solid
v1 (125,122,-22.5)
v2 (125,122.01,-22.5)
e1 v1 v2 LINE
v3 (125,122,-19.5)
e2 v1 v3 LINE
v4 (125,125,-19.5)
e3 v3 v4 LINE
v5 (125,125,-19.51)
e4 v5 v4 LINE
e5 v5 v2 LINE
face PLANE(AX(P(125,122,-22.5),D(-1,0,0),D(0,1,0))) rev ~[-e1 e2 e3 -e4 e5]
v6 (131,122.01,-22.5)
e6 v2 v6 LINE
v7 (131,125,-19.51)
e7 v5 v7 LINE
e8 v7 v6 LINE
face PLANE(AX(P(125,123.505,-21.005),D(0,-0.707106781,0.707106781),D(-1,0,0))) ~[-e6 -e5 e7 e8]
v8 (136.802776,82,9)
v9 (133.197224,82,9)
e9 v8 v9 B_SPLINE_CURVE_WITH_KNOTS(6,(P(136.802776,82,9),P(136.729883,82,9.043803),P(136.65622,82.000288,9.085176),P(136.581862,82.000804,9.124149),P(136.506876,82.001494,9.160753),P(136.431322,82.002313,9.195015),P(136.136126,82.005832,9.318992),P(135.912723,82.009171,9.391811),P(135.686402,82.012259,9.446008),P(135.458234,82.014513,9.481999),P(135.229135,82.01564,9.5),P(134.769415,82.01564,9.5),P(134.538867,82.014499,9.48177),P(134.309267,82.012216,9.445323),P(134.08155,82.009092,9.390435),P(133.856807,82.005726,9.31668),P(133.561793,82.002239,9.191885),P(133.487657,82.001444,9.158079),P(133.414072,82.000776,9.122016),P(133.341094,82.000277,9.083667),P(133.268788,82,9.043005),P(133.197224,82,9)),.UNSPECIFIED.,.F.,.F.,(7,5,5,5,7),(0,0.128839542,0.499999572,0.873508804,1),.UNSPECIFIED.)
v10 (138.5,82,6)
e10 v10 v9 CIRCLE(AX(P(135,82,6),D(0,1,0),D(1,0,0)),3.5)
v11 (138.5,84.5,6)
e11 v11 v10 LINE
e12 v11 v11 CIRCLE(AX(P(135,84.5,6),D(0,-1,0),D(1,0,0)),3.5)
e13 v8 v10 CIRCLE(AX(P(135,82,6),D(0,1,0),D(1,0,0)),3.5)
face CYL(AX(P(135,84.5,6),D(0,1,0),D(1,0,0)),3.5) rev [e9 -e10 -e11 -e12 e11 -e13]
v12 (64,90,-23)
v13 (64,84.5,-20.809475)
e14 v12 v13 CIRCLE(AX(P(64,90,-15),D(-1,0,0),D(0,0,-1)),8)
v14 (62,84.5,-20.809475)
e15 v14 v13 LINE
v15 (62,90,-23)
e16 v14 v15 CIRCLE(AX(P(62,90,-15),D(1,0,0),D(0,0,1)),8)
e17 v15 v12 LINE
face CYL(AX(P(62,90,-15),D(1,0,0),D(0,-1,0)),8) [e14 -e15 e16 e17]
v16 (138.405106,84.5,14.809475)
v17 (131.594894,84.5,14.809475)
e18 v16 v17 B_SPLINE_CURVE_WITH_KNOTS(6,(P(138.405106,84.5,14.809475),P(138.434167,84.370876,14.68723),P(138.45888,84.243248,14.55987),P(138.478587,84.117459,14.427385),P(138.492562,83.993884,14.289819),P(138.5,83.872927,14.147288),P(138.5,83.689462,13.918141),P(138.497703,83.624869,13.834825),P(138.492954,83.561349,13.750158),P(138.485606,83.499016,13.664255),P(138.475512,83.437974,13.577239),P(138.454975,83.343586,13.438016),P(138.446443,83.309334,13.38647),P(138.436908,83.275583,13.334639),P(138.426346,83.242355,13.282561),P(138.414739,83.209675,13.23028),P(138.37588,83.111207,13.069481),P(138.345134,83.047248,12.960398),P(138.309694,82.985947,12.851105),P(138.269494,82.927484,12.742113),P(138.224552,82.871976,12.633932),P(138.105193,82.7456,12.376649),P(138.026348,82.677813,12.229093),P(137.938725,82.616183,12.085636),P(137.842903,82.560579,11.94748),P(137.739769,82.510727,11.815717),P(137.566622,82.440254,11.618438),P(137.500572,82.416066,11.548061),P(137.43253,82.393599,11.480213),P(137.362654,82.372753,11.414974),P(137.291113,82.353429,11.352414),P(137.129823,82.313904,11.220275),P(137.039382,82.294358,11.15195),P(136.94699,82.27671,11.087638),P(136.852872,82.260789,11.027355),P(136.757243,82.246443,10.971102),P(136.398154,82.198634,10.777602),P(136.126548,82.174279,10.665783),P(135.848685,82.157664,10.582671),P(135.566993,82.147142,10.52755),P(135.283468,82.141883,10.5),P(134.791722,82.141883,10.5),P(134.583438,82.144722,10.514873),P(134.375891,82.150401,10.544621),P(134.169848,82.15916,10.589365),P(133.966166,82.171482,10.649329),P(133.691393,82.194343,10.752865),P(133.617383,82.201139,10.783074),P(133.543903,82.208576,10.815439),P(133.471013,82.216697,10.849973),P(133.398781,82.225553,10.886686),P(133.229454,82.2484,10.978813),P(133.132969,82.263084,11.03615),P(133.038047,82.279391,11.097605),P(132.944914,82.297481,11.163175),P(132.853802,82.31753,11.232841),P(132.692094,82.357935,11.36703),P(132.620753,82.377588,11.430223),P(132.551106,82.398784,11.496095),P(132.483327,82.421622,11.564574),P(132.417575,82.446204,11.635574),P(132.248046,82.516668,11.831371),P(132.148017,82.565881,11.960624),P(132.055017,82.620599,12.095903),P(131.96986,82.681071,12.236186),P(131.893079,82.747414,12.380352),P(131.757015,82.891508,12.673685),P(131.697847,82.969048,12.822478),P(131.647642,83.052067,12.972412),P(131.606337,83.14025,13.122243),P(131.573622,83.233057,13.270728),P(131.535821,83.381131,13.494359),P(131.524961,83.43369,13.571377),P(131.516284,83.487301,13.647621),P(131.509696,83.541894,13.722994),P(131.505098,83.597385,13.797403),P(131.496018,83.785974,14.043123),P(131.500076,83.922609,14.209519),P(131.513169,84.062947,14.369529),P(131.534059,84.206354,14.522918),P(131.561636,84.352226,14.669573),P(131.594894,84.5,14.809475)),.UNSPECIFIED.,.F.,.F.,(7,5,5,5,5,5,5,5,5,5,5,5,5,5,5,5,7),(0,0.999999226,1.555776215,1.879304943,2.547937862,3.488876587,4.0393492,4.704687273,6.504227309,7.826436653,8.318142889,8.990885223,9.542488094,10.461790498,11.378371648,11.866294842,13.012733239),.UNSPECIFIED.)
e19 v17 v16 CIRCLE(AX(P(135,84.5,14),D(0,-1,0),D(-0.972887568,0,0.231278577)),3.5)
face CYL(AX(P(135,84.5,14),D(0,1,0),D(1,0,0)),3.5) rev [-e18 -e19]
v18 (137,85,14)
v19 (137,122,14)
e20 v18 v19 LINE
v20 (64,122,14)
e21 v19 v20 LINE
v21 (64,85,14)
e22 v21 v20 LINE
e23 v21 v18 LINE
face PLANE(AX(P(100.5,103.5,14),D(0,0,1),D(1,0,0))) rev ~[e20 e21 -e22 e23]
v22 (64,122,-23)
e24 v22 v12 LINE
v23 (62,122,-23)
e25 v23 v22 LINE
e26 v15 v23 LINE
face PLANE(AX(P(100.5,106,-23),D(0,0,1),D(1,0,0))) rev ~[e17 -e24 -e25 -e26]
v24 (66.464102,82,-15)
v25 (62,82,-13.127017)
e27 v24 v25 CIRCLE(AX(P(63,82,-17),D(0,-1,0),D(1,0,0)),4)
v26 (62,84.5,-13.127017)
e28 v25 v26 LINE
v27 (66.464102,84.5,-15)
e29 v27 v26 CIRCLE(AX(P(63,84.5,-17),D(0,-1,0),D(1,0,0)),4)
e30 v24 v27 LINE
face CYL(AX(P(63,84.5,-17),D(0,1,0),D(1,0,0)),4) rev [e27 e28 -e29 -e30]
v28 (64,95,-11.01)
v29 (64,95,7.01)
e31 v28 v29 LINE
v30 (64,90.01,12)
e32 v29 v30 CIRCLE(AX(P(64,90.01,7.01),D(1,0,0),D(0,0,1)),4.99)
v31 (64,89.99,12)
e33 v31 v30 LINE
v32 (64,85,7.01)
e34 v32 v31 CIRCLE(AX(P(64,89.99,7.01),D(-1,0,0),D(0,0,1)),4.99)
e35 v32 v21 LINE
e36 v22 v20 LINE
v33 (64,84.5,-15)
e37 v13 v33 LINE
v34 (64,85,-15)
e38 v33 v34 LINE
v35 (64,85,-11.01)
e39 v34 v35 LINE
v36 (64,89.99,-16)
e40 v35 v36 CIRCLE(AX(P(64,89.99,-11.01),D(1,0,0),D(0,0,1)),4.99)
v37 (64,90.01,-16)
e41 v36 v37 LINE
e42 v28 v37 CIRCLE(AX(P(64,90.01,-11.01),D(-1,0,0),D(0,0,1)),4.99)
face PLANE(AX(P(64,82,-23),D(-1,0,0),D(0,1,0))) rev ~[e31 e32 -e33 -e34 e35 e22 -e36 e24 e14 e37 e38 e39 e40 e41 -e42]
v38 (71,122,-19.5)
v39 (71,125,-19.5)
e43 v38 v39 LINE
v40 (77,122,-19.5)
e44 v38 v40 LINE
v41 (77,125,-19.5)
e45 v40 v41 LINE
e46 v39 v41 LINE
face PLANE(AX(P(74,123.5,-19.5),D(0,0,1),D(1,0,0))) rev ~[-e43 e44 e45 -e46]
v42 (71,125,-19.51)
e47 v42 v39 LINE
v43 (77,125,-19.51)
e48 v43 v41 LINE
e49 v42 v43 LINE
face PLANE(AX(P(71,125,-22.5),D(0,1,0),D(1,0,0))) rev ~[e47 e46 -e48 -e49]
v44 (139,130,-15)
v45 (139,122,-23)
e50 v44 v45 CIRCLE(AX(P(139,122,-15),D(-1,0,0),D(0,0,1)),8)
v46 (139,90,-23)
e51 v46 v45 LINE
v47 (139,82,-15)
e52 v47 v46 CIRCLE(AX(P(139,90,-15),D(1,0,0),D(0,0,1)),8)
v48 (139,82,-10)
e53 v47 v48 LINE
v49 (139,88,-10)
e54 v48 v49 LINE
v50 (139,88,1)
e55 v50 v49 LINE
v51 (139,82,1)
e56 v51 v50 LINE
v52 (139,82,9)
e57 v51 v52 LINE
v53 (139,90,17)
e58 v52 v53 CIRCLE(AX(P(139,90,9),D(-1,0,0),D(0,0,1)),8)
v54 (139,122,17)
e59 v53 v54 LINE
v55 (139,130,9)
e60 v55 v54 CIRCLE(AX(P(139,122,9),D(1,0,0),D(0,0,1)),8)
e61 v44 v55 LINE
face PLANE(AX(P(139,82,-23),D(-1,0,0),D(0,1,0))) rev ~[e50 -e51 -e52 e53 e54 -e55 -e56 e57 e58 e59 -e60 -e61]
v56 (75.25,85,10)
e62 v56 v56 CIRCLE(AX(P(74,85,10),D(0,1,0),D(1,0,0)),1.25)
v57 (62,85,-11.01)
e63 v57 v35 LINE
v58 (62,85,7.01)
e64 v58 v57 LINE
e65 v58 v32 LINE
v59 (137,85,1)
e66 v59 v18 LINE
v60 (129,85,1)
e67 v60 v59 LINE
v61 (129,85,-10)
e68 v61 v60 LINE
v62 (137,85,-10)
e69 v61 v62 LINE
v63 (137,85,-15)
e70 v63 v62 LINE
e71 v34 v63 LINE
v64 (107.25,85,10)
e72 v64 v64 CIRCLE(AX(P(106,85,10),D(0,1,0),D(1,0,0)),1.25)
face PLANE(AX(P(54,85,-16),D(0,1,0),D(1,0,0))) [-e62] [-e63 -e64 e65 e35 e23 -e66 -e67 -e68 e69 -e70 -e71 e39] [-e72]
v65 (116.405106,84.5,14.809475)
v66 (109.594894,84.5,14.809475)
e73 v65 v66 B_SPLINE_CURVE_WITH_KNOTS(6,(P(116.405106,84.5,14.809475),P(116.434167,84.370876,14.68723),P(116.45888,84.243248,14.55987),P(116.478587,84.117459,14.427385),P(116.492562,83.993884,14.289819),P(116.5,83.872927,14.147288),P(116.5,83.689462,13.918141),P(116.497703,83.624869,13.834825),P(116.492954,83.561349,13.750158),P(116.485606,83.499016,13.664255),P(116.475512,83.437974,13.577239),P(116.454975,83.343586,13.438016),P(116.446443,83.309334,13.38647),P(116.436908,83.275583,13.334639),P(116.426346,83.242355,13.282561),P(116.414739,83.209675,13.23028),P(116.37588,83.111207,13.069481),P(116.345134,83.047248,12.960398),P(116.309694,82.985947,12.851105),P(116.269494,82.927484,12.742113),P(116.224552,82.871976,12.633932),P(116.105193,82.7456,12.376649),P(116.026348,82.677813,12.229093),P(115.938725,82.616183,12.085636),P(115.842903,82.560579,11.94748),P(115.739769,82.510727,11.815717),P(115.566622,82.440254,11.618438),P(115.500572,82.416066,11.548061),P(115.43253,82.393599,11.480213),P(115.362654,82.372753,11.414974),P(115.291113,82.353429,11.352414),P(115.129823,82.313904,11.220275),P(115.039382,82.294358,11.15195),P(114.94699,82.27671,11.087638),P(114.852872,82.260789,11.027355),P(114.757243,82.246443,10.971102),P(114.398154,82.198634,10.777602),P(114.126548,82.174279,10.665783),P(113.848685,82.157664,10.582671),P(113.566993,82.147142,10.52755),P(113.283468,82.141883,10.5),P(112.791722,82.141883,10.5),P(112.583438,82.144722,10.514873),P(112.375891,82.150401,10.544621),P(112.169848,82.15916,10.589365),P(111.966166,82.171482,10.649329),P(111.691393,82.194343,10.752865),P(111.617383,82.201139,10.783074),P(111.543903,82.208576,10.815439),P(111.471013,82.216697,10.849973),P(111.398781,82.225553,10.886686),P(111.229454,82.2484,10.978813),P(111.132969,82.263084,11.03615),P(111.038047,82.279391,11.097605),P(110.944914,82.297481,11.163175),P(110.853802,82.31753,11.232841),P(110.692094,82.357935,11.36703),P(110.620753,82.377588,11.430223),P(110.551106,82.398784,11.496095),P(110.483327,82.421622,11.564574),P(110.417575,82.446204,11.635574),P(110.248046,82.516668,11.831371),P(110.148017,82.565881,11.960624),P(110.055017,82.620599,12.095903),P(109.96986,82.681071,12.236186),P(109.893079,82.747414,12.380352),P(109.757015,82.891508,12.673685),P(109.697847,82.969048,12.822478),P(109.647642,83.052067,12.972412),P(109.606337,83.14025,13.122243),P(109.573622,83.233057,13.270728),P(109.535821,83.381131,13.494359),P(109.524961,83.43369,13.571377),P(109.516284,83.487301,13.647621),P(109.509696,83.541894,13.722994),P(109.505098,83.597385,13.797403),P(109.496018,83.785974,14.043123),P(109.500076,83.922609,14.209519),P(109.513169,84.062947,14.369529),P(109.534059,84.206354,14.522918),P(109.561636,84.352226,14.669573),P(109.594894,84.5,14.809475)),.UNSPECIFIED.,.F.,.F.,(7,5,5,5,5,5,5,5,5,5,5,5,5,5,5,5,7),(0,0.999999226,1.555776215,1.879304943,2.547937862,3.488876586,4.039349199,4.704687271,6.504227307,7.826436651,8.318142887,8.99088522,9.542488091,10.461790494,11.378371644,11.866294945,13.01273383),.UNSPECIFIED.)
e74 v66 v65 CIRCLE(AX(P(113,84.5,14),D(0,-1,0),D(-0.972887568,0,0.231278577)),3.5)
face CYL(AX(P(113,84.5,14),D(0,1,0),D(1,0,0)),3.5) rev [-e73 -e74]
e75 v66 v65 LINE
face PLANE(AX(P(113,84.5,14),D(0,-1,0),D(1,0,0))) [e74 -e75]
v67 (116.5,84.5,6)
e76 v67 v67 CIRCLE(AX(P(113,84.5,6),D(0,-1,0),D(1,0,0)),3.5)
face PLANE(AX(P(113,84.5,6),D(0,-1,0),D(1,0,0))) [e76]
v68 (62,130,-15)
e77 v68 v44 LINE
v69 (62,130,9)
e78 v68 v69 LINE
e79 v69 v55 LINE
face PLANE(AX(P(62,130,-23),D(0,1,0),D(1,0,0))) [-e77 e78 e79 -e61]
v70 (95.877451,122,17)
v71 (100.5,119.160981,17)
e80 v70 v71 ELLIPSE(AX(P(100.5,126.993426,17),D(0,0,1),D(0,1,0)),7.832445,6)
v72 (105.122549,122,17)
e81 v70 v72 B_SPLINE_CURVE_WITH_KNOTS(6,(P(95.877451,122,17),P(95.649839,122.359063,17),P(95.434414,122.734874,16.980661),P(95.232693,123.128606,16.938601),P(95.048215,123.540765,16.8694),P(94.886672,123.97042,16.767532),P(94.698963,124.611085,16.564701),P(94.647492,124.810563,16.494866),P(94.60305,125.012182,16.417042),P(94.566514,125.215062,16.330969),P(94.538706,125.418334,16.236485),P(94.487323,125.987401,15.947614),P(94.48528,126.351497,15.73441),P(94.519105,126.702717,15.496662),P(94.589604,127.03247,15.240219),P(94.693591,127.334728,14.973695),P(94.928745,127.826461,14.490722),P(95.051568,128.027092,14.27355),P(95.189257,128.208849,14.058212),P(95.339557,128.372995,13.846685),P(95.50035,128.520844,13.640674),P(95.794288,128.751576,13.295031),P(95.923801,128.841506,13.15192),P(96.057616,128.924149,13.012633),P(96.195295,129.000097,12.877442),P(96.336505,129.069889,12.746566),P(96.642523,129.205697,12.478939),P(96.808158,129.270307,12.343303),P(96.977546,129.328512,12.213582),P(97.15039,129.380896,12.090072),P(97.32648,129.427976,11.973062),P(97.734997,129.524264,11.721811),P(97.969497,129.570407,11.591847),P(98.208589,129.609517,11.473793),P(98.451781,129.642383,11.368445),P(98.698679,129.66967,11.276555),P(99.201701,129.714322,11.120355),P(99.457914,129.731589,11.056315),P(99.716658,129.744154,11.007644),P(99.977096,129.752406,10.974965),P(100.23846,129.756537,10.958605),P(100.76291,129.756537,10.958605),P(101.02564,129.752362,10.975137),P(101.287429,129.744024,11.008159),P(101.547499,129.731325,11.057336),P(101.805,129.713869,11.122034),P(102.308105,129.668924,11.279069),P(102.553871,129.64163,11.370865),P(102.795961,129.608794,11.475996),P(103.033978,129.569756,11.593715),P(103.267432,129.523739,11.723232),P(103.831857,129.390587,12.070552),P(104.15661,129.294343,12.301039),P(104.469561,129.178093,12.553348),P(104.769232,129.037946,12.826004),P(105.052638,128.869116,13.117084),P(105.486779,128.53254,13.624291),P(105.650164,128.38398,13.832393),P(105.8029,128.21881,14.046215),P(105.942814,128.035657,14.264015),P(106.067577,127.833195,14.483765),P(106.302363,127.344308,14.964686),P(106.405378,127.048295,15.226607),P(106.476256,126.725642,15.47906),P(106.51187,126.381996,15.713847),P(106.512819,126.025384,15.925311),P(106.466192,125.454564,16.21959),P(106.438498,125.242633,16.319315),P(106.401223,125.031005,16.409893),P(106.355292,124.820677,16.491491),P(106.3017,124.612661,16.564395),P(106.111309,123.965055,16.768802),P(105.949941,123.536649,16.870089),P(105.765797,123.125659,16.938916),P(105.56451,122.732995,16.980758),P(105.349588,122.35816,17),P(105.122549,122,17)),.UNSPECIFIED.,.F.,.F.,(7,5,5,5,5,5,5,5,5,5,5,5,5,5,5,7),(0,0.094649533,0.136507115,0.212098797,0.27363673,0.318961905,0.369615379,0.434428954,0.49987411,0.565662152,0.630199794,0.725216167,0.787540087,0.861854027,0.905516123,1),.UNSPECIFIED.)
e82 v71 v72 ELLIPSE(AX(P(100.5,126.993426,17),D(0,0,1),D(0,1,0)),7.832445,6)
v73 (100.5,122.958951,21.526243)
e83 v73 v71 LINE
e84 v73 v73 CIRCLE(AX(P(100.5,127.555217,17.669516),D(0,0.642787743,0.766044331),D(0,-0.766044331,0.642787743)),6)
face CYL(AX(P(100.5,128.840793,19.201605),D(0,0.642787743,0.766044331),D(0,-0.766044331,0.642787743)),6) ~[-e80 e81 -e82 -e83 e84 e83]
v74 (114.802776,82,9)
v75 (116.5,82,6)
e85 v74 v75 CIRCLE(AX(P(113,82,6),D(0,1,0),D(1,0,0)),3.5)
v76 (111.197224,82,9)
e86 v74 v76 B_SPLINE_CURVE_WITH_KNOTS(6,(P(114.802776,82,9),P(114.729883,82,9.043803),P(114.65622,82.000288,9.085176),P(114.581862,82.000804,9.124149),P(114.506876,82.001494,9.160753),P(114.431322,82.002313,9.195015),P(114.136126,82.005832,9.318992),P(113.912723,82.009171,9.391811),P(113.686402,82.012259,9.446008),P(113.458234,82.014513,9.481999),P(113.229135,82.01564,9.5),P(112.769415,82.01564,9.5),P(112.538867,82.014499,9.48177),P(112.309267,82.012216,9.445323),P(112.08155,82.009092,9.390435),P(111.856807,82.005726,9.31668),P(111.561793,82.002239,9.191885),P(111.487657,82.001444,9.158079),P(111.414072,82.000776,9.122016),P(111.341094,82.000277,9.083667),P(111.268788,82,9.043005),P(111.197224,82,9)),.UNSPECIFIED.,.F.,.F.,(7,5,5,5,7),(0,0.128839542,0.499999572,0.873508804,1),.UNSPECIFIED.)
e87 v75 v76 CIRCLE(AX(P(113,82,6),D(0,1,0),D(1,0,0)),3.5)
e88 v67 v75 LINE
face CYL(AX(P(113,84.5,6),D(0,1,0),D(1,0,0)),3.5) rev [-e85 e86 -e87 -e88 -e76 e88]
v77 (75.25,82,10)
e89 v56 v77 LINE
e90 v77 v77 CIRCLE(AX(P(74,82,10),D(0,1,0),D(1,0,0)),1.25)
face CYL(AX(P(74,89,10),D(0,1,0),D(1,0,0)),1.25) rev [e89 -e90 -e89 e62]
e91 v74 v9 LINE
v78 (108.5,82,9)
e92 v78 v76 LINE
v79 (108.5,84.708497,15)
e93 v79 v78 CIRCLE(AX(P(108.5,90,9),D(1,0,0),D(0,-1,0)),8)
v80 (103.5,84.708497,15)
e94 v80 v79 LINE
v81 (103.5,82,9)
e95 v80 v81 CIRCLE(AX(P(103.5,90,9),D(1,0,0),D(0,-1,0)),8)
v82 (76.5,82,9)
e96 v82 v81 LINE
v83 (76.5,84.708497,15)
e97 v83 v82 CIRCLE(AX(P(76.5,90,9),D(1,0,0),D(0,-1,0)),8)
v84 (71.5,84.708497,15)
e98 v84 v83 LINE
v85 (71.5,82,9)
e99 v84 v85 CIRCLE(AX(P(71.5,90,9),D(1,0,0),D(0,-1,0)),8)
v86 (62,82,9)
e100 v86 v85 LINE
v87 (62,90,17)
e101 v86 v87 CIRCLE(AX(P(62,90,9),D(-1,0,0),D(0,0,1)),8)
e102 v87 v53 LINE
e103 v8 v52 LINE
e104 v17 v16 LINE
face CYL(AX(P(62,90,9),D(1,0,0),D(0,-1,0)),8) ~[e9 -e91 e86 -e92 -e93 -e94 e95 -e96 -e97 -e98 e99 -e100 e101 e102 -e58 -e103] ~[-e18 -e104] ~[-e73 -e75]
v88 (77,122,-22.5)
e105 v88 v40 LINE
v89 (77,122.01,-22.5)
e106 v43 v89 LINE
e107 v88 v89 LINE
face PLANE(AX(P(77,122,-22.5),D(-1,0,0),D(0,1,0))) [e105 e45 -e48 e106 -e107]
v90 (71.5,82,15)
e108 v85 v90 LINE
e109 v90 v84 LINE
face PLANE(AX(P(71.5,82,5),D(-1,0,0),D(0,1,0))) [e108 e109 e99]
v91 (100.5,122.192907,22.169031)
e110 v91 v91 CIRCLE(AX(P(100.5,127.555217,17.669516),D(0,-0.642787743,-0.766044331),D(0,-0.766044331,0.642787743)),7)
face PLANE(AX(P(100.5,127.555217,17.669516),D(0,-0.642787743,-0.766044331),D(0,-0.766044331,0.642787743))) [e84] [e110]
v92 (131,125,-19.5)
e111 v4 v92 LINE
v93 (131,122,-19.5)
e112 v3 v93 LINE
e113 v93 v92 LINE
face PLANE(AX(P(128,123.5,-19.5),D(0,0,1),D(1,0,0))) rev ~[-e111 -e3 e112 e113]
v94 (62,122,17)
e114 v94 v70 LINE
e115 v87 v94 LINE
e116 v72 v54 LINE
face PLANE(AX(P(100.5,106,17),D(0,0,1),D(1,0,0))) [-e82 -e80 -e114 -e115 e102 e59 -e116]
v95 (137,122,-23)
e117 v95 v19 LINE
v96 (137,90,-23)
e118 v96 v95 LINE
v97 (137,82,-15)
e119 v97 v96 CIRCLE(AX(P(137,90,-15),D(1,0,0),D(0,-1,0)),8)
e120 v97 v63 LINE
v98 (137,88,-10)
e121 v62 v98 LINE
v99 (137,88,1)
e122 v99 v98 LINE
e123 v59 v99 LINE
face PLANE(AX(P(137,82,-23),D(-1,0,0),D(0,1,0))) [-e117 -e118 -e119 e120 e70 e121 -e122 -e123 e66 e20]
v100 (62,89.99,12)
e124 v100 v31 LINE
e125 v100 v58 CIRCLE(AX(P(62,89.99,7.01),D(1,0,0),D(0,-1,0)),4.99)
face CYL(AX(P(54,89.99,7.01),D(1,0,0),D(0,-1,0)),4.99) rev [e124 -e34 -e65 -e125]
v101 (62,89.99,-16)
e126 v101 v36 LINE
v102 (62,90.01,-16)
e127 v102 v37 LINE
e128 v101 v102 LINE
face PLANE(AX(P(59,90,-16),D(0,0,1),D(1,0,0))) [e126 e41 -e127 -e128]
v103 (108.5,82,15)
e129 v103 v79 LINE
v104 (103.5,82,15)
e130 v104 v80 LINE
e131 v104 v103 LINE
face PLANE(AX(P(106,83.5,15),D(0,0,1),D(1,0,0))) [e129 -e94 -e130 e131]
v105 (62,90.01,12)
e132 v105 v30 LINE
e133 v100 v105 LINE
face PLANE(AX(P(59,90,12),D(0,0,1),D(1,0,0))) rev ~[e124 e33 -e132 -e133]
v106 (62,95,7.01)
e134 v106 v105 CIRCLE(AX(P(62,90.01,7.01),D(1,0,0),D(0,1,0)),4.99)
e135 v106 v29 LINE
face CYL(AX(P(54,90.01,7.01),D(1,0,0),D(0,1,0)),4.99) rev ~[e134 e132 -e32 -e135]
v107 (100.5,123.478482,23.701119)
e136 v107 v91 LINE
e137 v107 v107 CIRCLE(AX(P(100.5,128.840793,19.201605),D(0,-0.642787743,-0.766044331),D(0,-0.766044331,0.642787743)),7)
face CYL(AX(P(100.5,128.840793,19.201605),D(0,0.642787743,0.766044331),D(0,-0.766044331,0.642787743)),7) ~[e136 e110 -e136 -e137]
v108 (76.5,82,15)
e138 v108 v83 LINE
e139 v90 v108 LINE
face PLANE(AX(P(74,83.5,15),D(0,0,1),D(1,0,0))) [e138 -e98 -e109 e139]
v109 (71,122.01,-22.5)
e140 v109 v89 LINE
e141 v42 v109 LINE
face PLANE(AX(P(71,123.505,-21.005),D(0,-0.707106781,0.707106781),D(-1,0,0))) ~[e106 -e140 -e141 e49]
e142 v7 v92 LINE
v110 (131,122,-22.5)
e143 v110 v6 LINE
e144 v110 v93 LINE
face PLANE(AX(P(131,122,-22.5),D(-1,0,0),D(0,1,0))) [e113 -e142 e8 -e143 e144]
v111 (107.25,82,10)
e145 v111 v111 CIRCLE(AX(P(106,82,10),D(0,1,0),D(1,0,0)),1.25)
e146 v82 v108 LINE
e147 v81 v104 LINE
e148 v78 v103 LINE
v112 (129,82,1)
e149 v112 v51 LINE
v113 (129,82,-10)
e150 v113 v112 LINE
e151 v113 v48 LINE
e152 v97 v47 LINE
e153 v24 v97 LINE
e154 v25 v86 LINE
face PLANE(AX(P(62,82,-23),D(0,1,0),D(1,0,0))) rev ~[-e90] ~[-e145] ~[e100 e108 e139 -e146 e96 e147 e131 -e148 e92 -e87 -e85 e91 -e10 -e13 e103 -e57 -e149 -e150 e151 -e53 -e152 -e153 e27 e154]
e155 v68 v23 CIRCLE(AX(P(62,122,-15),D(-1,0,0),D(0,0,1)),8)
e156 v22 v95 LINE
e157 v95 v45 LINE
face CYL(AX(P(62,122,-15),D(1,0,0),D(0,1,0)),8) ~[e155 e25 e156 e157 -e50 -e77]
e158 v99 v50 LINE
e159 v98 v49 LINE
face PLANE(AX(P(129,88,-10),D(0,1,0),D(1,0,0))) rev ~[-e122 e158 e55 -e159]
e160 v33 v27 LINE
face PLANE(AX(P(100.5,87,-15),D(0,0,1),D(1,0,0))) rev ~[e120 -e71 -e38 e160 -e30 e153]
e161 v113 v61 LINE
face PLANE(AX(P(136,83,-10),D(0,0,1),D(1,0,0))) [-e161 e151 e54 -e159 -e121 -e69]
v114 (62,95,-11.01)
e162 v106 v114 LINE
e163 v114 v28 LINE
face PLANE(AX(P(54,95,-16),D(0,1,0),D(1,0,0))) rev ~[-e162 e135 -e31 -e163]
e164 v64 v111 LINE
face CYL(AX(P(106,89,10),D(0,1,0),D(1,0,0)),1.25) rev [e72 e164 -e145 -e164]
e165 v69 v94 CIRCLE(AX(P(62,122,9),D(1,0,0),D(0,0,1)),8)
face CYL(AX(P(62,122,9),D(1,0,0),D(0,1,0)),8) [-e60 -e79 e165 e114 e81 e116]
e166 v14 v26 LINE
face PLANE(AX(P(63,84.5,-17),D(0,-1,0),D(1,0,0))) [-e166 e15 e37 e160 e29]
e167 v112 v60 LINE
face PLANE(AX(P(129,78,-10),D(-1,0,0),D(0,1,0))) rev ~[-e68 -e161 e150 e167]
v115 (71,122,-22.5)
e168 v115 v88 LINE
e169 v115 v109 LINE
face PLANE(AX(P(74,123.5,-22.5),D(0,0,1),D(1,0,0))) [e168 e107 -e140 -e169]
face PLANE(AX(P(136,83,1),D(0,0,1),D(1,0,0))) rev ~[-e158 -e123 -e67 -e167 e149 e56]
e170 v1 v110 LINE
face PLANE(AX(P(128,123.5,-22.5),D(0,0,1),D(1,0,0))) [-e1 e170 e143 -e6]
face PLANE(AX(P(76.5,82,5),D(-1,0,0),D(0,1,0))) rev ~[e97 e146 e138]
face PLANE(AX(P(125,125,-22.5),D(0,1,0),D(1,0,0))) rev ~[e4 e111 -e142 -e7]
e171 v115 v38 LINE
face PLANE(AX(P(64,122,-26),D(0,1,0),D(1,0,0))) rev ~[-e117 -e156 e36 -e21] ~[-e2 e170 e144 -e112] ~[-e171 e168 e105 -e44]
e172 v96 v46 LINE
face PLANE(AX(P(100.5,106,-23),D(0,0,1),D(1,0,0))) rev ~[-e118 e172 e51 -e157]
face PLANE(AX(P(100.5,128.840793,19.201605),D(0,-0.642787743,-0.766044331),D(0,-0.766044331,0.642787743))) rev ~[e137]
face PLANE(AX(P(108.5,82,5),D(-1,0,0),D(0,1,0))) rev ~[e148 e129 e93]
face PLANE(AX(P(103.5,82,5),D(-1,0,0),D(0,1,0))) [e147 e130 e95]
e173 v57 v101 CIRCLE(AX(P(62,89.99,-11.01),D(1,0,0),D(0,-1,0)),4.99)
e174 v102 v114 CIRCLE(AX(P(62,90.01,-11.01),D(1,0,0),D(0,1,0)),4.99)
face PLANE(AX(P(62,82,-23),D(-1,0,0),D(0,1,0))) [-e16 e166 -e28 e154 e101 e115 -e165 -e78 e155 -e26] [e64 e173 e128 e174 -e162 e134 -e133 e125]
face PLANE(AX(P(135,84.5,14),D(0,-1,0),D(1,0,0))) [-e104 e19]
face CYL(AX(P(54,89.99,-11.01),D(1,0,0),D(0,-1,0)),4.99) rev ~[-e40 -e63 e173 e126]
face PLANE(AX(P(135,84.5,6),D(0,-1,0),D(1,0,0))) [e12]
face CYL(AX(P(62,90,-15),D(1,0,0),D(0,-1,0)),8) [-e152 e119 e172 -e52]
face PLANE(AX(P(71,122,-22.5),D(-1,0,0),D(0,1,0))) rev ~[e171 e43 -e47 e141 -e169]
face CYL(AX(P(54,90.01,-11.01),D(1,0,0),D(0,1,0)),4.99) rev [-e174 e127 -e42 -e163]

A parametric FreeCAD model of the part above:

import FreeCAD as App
import Part
import Sketcher

V = App.Vector


def edges_at(feature, points):
    """Names of the edges that pass closest to the given points."""
    edges = feature.Shape.Edges
    near = lambda p: min(range(len(edges)), key=lambda i: edges[i].distToShape(Part.Vertex(*p))[0])
    return sorted({f"Edge{near(p) + 1}" for p in points})


def add_polygon(sketch, points):
    """Adds a closed chain of lines whose ends are joined by coincident constraints."""
    first, n = sketch.GeometryCount, len(points)
    for a, b in zip(points, points[1:] + points[:1]):
        sketch.addGeometry(Part.LineSegment(App.Vector(*a, 0), App.Vector(*b, 0)), False)
    for i in range(n):
        sketch.addConstraint(Sketcher.Constraint("Coincident", first + i, 2, first + (i + 1) % n, 1))

doc = App.newDocument("Part")
body = doc.addObject("PartDesign::Body", "Body")

# Sketch on XY plane
sketch1 = body.newObject("Sketcher::SketchObject", "Sketch")
sketch1.AttachmentSupport = (doc.getObject("XY_Plane"), [""])
sketch1.MapMode = "FlatFace"
sketch1.addGeometry(Part.Circle(V(0, 0, 0), V(0, 0, 1), 4), False)
sketch1.addConstraint(Sketcher.Constraint("Coincident", 0, 3, -1, 1))
sketch1.addConstraint(Sketcher.Constraint("Diameter", 0, 8.0))
pad1 = body.newObject("PartDesign::Pad", "Pad")
pad1.Profile = sketch1
pad1.Length = 2.5
body2 = doc.addObject("PartDesign::Body", "Body001")
doc.recompute()

body.Placement = App.Placement(V(0, 0, 0), App.Rotation(V(1, 0, 0), 90))
boolean = body2.newObject("PartDesign::Boolean", "Boolean")
boolean.Type = "Fuse"
boolean.addObjects([body])
body3 = doc.addObject("PartDesign::Body", "Body002")
doc.recompute()

body2.Placement = App.Placement(V(63, 84.5, -17), App.Rotation(V(0, 0, 1), 0))
boolean2 = body3.newObject("PartDesign::Boolean", "Boolean001")
boolean2.Type = "Fuse"
boolean2.addObjects([body2])
body4 = doc.addObject("PartDesign::Body", "Body003")

# Sketch on XY plane
sketch2 = body4.newObject("Sketcher::SketchObject", "Sketch001")
sketch2.AttachmentSupport = (doc.getObject("XY_Plane003"), [""])
sketch2.MapMode = "FlatFace"
sketch2.AttachmentOffset = App.Placement(V(0, 0, -10), App.Rotation())
add_polygon(sketch2, [(129, 88), (129, 78), (143, 78), (143, 88)])  # lines 0-3
sketch2.addConstraint(Sketcher.Constraint("Vertical", 0))
sketch2.addConstraint(Sketcher.Constraint("Horizontal", 1))
sketch2.addConstraint(Sketcher.Constraint("Vertical", 2))
sketch2.addConstraint(Sketcher.Constraint("Horizontal", 3))
sketch2.addConstraint(Sketcher.Constraint("DistanceX", 1, 1, 1, 2, 14.0))
sketch2.addConstraint(Sketcher.Constraint("DistanceY", 0, 2, 0, 1, 10.0))
sketch2.addConstraint(Sketcher.Constraint("DistanceX", -1, 1, 0, 2, 129.0))
sketch2.addConstraint(Sketcher.Constraint("DistanceY", -1, 1, 0, 2, 78.0))
pad2 = body4.newObject("PartDesign::Pad", "Pad001")
pad2.Profile = sketch2
pad2.Length = 11
body5 = doc.addObject("PartDesign::Body", "Body004")

# Sketch on XY plane
sketch3 = body5.newObject("Sketcher::SketchObject", "Sketch002")
sketch3.AttachmentSupport = (doc.getObject("XY_Plane004"), [""])
sketch3.MapMode = "FlatFace"
sketch3.addGeometry(Part.Circle(V(0, 0, 0), V(0, 0, 1), 1.2), False)
sketch3.addConstraint(Sketcher.Constraint("Coincident", 0, 3, -1, 1))
sketch3.addConstraint(Sketcher.Constraint("Diameter", 0, 2.5))
pad3 = body5.newObject("PartDesign::Pad", "Pad002")
pad3.Profile = sketch3
pad3.Length = 15
body6 = doc.addObject("PartDesign::Body", "Body005")
doc.recompute()

body5.Placement = App.Placement(V(0, 0, 0), App.Rotation(V(1, 0, 0), 90))
boolean3 = body6.newObject("PartDesign::Boolean", "Boolean002")
boolean3.Type = "Fuse"
boolean3.addObjects([body5])
body7 = doc.addObject("PartDesign::Body", "Body006")
doc.recompute()

body6.Placement = App.Placement(V(74, 97, 10), App.Rotation(V(0, 0, 1), 0))
boolean4 = body7.newObject("PartDesign::Boolean", "Boolean003")
boolean4.Type = "Fuse"
boolean4.addObjects([body6])
body8 = doc.addObject("PartDesign::Body", "Body007")

# Sketch on XY plane
sketch4 = body8.newObject("Sketcher::SketchObject", "Sketch003")
sketch4.AttachmentSupport = (doc.getObject("XY_Plane007"), [""])
sketch4.MapMode = "FlatFace"
sketch4.addGeometry(Part.Circle(V(0, 0, 0), V(0, 0, 1), 1.2), False)
sketch4.addConstraint(Sketcher.Constraint("Coincident", 0, 3, -1, 1))
sketch4.addConstraint(Sketcher.Constraint("Diameter", 0, 2.5))
pad4 = body8.newObject("PartDesign::Pad", "Pad003")
pad4.Profile = sketch4
pad4.Length = 15
body9 = doc.addObject("PartDesign::Body", "Body008")
doc.recompute()

body8.Placement = App.Placement(V(0, 0, 0), App.Rotation(V(1, 0, 0), 90))
boolean5 = body9.newObject("PartDesign::Boolean", "Boolean004")
boolean5.Type = "Fuse"
boolean5.addObjects([body8])
body10 = doc.addObject("PartDesign::Body", "Body009")
body10.AllowCompound = True
doc.recompute()

body9.Placement = App.Placement(V(106, 97, 10), App.Rotation(V(0, 0, 1), 0))
boolean6 = body10.newObject("PartDesign::Boolean", "Boolean005")
boolean6.Type = "Fuse"
boolean6.addObjects([body9])
doc.recompute()

boolean7 = body10.newObject("PartDesign::Boolean", "Boolean006")
boolean7.Type = "Fuse"
boolean7.addObjects([body7])
body11 = doc.addObject("PartDesign::Body", "Body010")
body11.AllowCompound = True
doc.recompute()

body10.Placement = App.Placement(V(0, -8, 0), App.Rotation(V(0, 0, 1), 0))
boolean8 = body11.newObject("PartDesign::Boolean", "Boolean007")
boolean8.Type = "Fuse"
boolean8.addObjects([body10])
body12 = doc.addObject("PartDesign::Body", "Body011")

# Sketch on XY plane
sketch5 = body12.newObject("Sketcher::SketchObject", "Sketch004")
sketch5.AttachmentSupport = (doc.getObject("XY_Plane011"), [""])
sketch5.MapMode = "FlatFace"
sketch5.addGeometry(Part.Circle(V(-8, 25.5, 0), V(0, 0, 1), 3.5), False)
sketch5.addConstraint(Sketcher.Constraint("Diameter", 0, 7.0))
sketch5.addConstraint(Sketcher.Constraint("DistanceX", 0, 3, -1, 1, 8.0))
sketch5.addConstraint(Sketcher.Constraint("DistanceY", -1, 1, 0, 3, 25.5))
pad5 = body12.newObject("PartDesign::Pad", "Pad004")
pad5.Profile = sketch5
pad5.Length = 10
body13 = doc.addObject("PartDesign::Body", "Body012")
body13.AllowCompound = True

# Sketch on XY plane
sketch6 = body13.newObject("Sketcher::SketchObject", "Sketch005")
sketch6.AttachmentSupport = (doc.getObject("XY_Plane012"), [""])
sketch6.MapMode = "FlatFace"
sketch6.addGeometry(Part.Circle(V(-8, 33.5, 0), V(0, 0, 1), 3.5), False)
sketch6.addConstraint(Sketcher.Constraint("Diameter", 0, 7.0))
sketch6.addConstraint(Sketcher.Constraint("DistanceX", 0, 3, -1, 1, 8.0))
sketch6.addConstraint(Sketcher.Constraint("DistanceY", -1, 1, 0, 3, 33.5))
pad6 = body13.newObject("PartDesign::Pad", "Pad005")
pad6.Profile = sketch6
pad6.Length = 10
doc.recompute()

boolean9 = body13.newObject("PartDesign::Boolean", "Boolean008")
boolean9.Type = "Fuse"
boolean9.addObjects([body12])
body14 = doc.addObject("PartDesign::Body", "Body013")
body14.AllowCompound = True
doc.recompute()

body13.Placement = App.Placement(V(0, 0, 0), App.Rotation(V(1, 0, 0), 90))
boolean10 = body14.newObject("PartDesign::Boolean", "Boolean009")
boolean10.Type = "Fuse"
boolean10.addObjects([body13])
body15 = doc.addObject("PartDesign::Body", "Body014")
body15.AllowCompound = True
doc.recompute()

body14.Placement = App.Placement(V(312, 84.5, -19.5), App.Rotation(V(0, 0, 1), 0))
boolean11 = body15.newObject("PartDesign::Boolean", "Boolean010")
boolean11.Type = "Fuse"
boolean11.addObjects([body14])
body16 = doc.addObject("PartDesign::Body", "Body015")

# Sketch on XY plane
sketch7 = body16.newObject("Sketcher::SketchObject", "Sketch006")
sketch7.AttachmentSupport = (doc.getObject("XY_Plane015"), [""])
sketch7.MapMode = "FlatFace"
sketch7.addGeometry(Part.Circle(V(-8, 25.5, 0), V(0, 0, 1), 3.5), False)
sketch7.addConstraint(Sketcher.Constraint("Diameter", 0, 7.0))
sketch7.addConstraint(Sketcher.Constraint("DistanceX", 0, 3, -1, 1, 8.0))
sketch7.addConstraint(Sketcher.Constraint("DistanceY", -1, 1, 0, 3, 25.5))
pad7 = body16.newObject("PartDesign::Pad", "Pad006")
pad7.Profile = sketch7
pad7.Length = 10
body17 = doc.addObject("PartDesign::Body", "Body016")
body17.AllowCompound = True

# Sketch on XY plane
sketch8 = body17.newObject("Sketcher::SketchObject", "Sketch007")
sketch8.AttachmentSupport = (doc.getObject("XY_Plane016"), [""])
sketch8.MapMode = "FlatFace"
sketch8.addGeometry(Part.Circle(V(-8, 33.5, 0), V(0, 0, 1), 3.5), False)
sketch8.addConstraint(Sketcher.Constraint("Diameter", 0, 7.0))
sketch8.addConstraint(Sketcher.Constraint("DistanceX", 0, 3, -1, 1, 8.0))
sketch8.addConstraint(Sketcher.Constraint("DistanceY", -1, 1, 0, 3, 33.5))
pad8 = body17.newObject("PartDesign::Pad", "Pad007")
pad8.Profile = sketch8
pad8.Length = 10
doc.recompute()

boolean12 = body17.newObject("PartDesign::Boolean", "Boolean011")
boolean12.Type = "Fuse"
boolean12.addObjects([body16])
body18 = doc.addObject("PartDesign::Body", "Body017")
body18.AllowCompound = True
doc.recompute()

body17.Placement = App.Placement(V(0, 0, 0), App.Rotation(V(1, 0, 0), 90))
boolean13 = body18.newObject("PartDesign::Boolean", "Boolean012")
boolean13.Type = "Fuse"
boolean13.addObjects([body17])
body19 = doc.addObject("PartDesign::Body", "Body018")
body19.AllowCompound = True
doc.recompute()

body18.Placement = App.Placement(V(334, 84.5, -19.5), App.Rotation(V(0, 0, 1), 0))
boolean14 = body19.newObject("PartDesign::Boolean", "Boolean013")
boolean14.Type = "Fuse"
boolean14.addObjects([body18])
doc.recompute()

boolean15 = body19.newObject("PartDesign::Boolean", "Boolean014")
boolean15.Type = "Fuse"
boolean15.addObjects([body15])
body20 = doc.addObject("PartDesign::Body", "Body019")
body20.AllowCompound = True
doc.recompute()

body19.Placement = App.Placement(V(-191, 0, 0), App.Rotation(V(0, 0, 1), 0))
boolean16 = body20.newObject("PartDesign::Boolean", "Boolean015")
boolean16.Type = "Fuse"
boolean16.addObjects([body19])
body21 = doc.addObject("PartDesign::Body", "Body020")

# Sketch on XY plane
sketch9 = body21.newObject("Sketcher::SketchObject", "Sketch008")
sketch9.AttachmentSupport = (doc.getObject("XY_Plane020"), [""])
sketch9.MapMode = "FlatFace"
sketch9.AttachmentOffset = App.Placement(V(0, 0, 5), App.Rotation())
add_polygon(sketch9, [(71.5, 85), (71.5, 82), (76.5, 82), (76.5, 85)])  # lines 0-3
sketch9.addConstraint(Sketcher.Constraint("Vertical", 0))
sketch9.addConstraint(Sketcher.Constraint("Horizontal", 1))
sketch9.addConstraint(Sketcher.Constraint("Vertical", 2))
sketch9.addConstraint(Sketcher.Constraint("Horizontal", 3))
sketch9.addConstraint(Sketcher.Constraint("DistanceX", 1, 1, 1, 2, 5.0))
sketch9.addConstraint(Sketcher.Constraint("DistanceY", 0, 2, 0, 1, 3.0))
sketch9.addConstraint(Sketcher.Constraint("DistanceY", -1, 1, 0, 2, 82.0))
sketch9.addConstraint(Sketcher.Constraint("DistanceX", -1, 1, 0, 2, 71.5))
pad9 = body21.newObject("PartDesign::Pad", "Pad008")
pad9.Profile = sketch9
pad9.Length = 10
body22 = doc.addObject("PartDesign::Body", "Body021")

# Sketch on XY plane
sketch10 = body22.newObject("Sketcher::SketchObject", "Sketch009")
sketch10.AttachmentSupport = (doc.getObject("XY_Plane021"), [""])
sketch10.MapMode = "FlatFace"
sketch10.AttachmentOffset = App.Placement(V(0, 0, 5), App.Rotation())
add_polygon(sketch10, [(103.5, 85), (103.5, 82), (108.5, 82), (108.5, 85)])  # lines 0-3
sketch10.addConstraint(Sketcher.Constraint("Vertical", 0))
sketch10.addConstraint(Sketcher.Constraint("Horizontal", 1))
sketch10.addConstraint(Sketcher.Constraint("Vertical", 2))
sketch10.addConstraint(Sketcher.Constraint("Horizontal", 3))
sketch10.addConstraint(Sketcher.Constraint("DistanceX", 1, 1, 1, 2, 5.0))
sketch10.addConstraint(Sketcher.Constraint("DistanceY", 0, 2, 0, 1, 3.0))
sketch10.addConstraint(Sketcher.Constraint("DistanceY", -1, 1, 0, 2, 82.0))
sketch10.addConstraint(Sketcher.Constraint("DistanceX", -1, 1, 0, 2, 103.5))
pad10 = body22.newObject("PartDesign::Pad", "Pad009")
pad10.Profile = sketch10
pad10.Length = 10
body23 = doc.addObject("PartDesign::Body", "Body022")

# Sketch on XY plane
sketch11 = body23.newObject("Sketcher::SketchObject", "Sketch010")
sketch11.AttachmentSupport = (doc.getObject("XY_Plane022"), [""])
sketch11.MapMode = "FlatFace"
sketch11.AttachmentOffset = App.Placement(V(0, 0, 9), App.Rotation())
add_polygon(sketch11, [(90, 122), (90, 112), (110, 112), (110, 122)])  # lines 0-3
sketch11.addConstraint(Sketcher.Constraint("Vertical", 0))
sketch11.addConstraint(Sketcher.Constraint("Horizontal", 1))
sketch11.addConstraint(Sketcher.Constraint("Vertical", 2))
sketch11.addConstraint(Sketcher.Constraint("Horizontal", 3))
sketch11.addConstraint(Sketcher.Constraint("DistanceX", 1, 1, 1, 2, 20.0))
sketch11.addConstraint(Sketcher.Constraint("DistanceY", 0, 2, 0, 1, 10.0))
sketch11.addConstraint(Sketcher.Constraint("DistanceX", -1, 1, 0, 2, 90.0))
sketch11.addConstraint(Sketcher.Constraint("DistanceY", -1, 1, 0, 2, 112.0))
pad11 = body23.newObject("PartDesign::Pad", "Pad010")
pad11.Profile = sketch11
pad11.Length = 5
body24 = doc.addObject("PartDesign::Body", "Body023")

# Sketch on XY plane
sketch12 = body24.newObject("Sketcher::SketchObject", "Sketch011")
sketch12.AttachmentSupport = (doc.getObject("XY_Plane023"), [""])
sketch12.MapMode = "FlatFace"
sketch12.AttachmentOffset = App.Placement(V(0, 0, -16), App.Rotation())
add_polygon(sketch12, [(54, 95), (54, 85), (64, 85), (64, 95)])  # lines 0-3
sketch12.addConstraint(Sketcher.Constraint("Vertical", 0))
sketch12.addConstraint(Sketcher.Constraint("Horizontal", 1))
sketch12.addConstraint(Sketcher.Constraint("Vertical", 2))
sketch12.addConstraint(Sketcher.Constraint("Horizontal", 3))
sketch12.addConstraint(Sketcher.Constraint("Equal", 3, 0))
sketch12.addConstraint(Sketcher.Constraint("DistanceX", 1, 1, 1, 2, 10.0))
sketch12.addConstraint(Sketcher.Constraint("DistanceX", -1, 1, 0, 2, 54.0))
sketch12.addConstraint(Sketcher.Constraint("DistanceY", -1, 1, 0, 2, 85.0))
pad12 = body24.newObject("PartDesign::Pad", "Pad011")
pad12.Profile = sketch12
pad12.Length = 28
doc.recompute()

fillet = body24.newObject("PartDesign::Fillet", "Fillet")
fillet.Base = (pad12, edges_at(pad12, [
    (59, 85, -16),
    (59, 85, 12),
    (59, 95, -16),
    (59, 95, 12),
]))
fillet.Radius = 4.99
body25 = doc.addObject("PartDesign::Body", "Body024")

# Sketch on XY plane
sketch13 = body25.newObject("Sketcher::SketchObject", "Sketch012")
sketch13.AttachmentSupport = (doc.getObject("XY_Plane024"), [""])
sketch13.MapMode = "FlatFace"
sketch13.AttachmentOffset = App.Placement(V(0, 0, -23), App.Rotation())
add_polygon(sketch13, [(70, 116), (70, 113), (76, 113), (76, 116)])  # lines 0-3
sketch13.addConstraint(Sketcher.Constraint("Vertical", 0))
sketch13.addConstraint(Sketcher.Constraint("Horizontal", 1))
sketch13.addConstraint(Sketcher.Constraint("Vertical", 2))
sketch13.addConstraint(Sketcher.Constraint("Horizontal", 3))
sketch13.addConstraint(Sketcher.Constraint("DistanceX", 1, 1, 1, 2, 6.0))
sketch13.addConstraint(Sketcher.Constraint("DistanceY", 0, 2, 0, 1, 3.0))
sketch13.addConstraint(Sketcher.Constraint("DistanceX", -1, 1, 0, 2, 70.0))
sketch13.addConstraint(Sketcher.Constraint("DistanceY", -1, 1, 0, 2, 113.0))
pad13 = body25.newObject("PartDesign::Pad", "Pad012")
pad13.Profile = sketch13
pad13.Length = 3
doc.recompute()

chamfer = body25.newObject("PartDesign::Chamfer", "Chamfer")
chamfer.Base = (pad13, edges_at(pad13, [(73, 116, -23)]))
chamfer.Size = 2.99
body26 = doc.addObject("PartDesign::Body", "Body025")
doc.recompute()

body25.Placement = App.Placement(V(55, 9, 0.5), App.Rotation(V(0, 0, 1), 0))
boolean17 = body26.newObject("PartDesign::Boolean", "Boolean016")
boolean17.Type = "Fuse"
boolean17.addObjects([body25])
body27 = doc.addObject("PartDesign::Body", "Body026")

# Sketch on XY plane
sketch14 = body27.newObject("Sketcher::SketchObject", "Sketch013")
sketch14.AttachmentSupport = (doc.getObject("XY_Plane026"), [""])
sketch14.MapMode = "FlatFace"
sketch14.AttachmentOffset = App.Placement(V(0, 0, -23), App.Rotation())
add_polygon(sketch14, [(70, 116), (70, 113), (76, 113), (76, 116)])  # lines 0-3
sketch14.addConstraint(Sketcher.Constraint("Vertical", 0))
sketch14.addConstraint(Sketcher.Constraint("Horizontal", 1))
sketch14.addConstraint(Sketcher.Constraint("Vertical", 2))
sketch14.addConstraint(Sketcher.Constraint("Horizontal", 3))
sketch14.addConstraint(Sketcher.Constraint("DistanceX", 1, 1, 1, 2, 6.0))
sketch14.addConstraint(Sketcher.Constraint("DistanceY", 0, 2, 0, 1, 3.0))
sketch14.addConstraint(Sketcher.Constraint("DistanceX", -1, 1, 0, 2, 70.0))
sketch14.addConstraint(Sketcher.Constraint("DistanceY", -1, 1, 0, 2, 113.0))
pad14 = body27.newObject("PartDesign::Pad", "Pad013")
pad14.Profile = sketch14
pad14.Length = 3
doc.recompute()

chamfer2 = body27.newObject("PartDesign::Chamfer", "Chamfer001")
chamfer2.Base = (pad14, edges_at(pad14, [(73, 116, -23)]))
chamfer2.Size = 2.99
body28 = doc.addObject("PartDesign::Body", "Body027")
body28.AllowCompound = True
doc.recompute()

body27.Placement = App.Placement(V(1, 9, 0.5), App.Rotation(V(0, 0, 1), 0))
boolean18 = body28.newObject("PartDesign::Boolean", "Boolean017")
boolean18.Type = "Fuse"
boolean18.addObjects([body27])
doc.recompute()

boolean19 = body28.newObject("PartDesign::Boolean", "Boolean018")
boolean19.Type = "Fuse"
boolean19.addObjects([body26])
body29 = doc.addObject("PartDesign::Body", "Body028")

# Sketch on XY plane
sketch15 = body29.newObject("Sketcher::SketchObject", "Sketch014")
sketch15.AttachmentSupport = (doc.getObject("XY_Plane028"), [""])
sketch15.MapMode = "FlatFace"
sketch15.AttachmentOffset = App.Placement(V(0, 0, -23), App.Rotation())
add_polygon(sketch15, [(64, 92), (64, 82), (137, 82), (137, 92)])  # lines 0-3
sketch15.addConstraint(Sketcher.Constraint("Vertical", 0))
sketch15.addConstraint(Sketcher.Constraint("Horizontal", 1))
sketch15.addConstraint(Sketcher.Constraint("Vertical", 2))
sketch15.addConstraint(Sketcher.Constraint("Horizontal", 3))
sketch15.addConstraint(Sketcher.Constraint("DistanceX", 1, 1, 1, 2, 73.0))
sketch15.addConstraint(Sketcher.Constraint("DistanceY", 0, 2, 0, 1, 10.0))
sketch15.addConstraint(Sketcher.Constraint("DistanceX", -1, 1, 0, 2, 64.0))
sketch15.addConstraint(Sketcher.Constraint("DistanceY", -1, 1, 0, 2, 82.0))
pad15 = body29.newObject("PartDesign::Pad", "Pad014")
pad15.Profile = sketch15
pad15.Length = 8
body30 = doc.addObject("PartDesign::Body", "Body029")

# Sketch on XY plane
sketch16 = body30.newObject("Sketcher::SketchObject", "Sketch015")
sketch16.AttachmentSupport = (doc.getObject("XY_Plane029"), [""])
sketch16.MapMode = "FlatFace"
sketch16.AttachmentOffset = App.Placement(V(0, 0, -26), App.Rotation())
add_polygon(sketch16, [(64, 122), (64, 85), (137, 85), (137, 122)])  # lines 0-3
sketch16.addConstraint(Sketcher.Constraint("Vertical", 0))
sketch16.addConstraint(Sketcher.Constraint("Horizontal", 1))
sketch16.addConstraint(Sketcher.Constraint("Vertical", 2))
sketch16.addConstraint(Sketcher.Constraint("Horizontal", 3))
sketch16.addConstraint(Sketcher.Constraint("DistanceX", 1, 1, 1, 2, 73.0))
sketch16.addConstraint(Sketcher.Constraint("DistanceY", 0, 2, 0, 1, 37.0))
sketch16.addConstraint(Sketcher.Constraint("DistanceX", -1, 1, 0, 2, 64.0))
sketch16.addConstraint(Sketcher.Constraint("DistanceY", -1, 1, 0, 2, 85.0))
pad16 = body30.newObject("PartDesign::Pad", "Pad015")
pad16.Profile = sketch16
pad16.Length = 40
body31 = doc.addObject("PartDesign::Body", "Body030")

# Sketch on XY plane
sketch17 = body31.newObject("Sketcher::SketchObject", "Sketch016")
sketch17.AttachmentSupport = (doc.getObject("XY_Plane030"), [""])
sketch17.MapMode = "FlatFace"
sketch17.AttachmentOffset = App.Placement(V(0, 0, -27), App.Rotation())
add_polygon(sketch17, [(62, 130), (62, 82), (139, 82), (139, 130)])  # lines 0-3
sketch17.addConstraint(Sketcher.Constraint("Vertical", 0))
sketch17.addConstraint(Sketcher.Constraint("Horizontal", 1))
sketch17.addConstraint(Sketcher.Constraint("Vertical", 2))
sketch17.addConstraint(Sketcher.Constraint("Horizontal", 3))
sketch17.addConstraint(Sketcher.Constraint("DistanceX", 1, 1, 1, 2, 77.0))
sketch17.addConstraint(Sketcher.Constraint("DistanceY", 0, 2, 0, 1, 48.0))
sketch17.addConstraint(Sketcher.Constraint("DistanceX", -1, 1, 0, 2, 62.0))
sketch17.addConstraint(Sketcher.Constraint("DistanceY", -1, 1, 0, 2, 82.0))
pad17 = body31.newObject("PartDesign::Pad", "Pad016")
pad17.Profile = sketch17
pad17.Length = 40
doc.recompute()

fillet2 = body31.newObject("PartDesign::Fillet", "Fillet001")
fillet2.Base = (pad17, edges_at(pad17, [
    (100.5, 82, -27),
    (100.5, 82, 13),
    (100.5, 130, -27),
    (100.5, 130, 13),
]))
fillet2.Radius = 8
body32 = doc.addObject("PartDesign::Body", "Body031")
doc.recompute()

body31.Placement = App.Placement(V(0, 0, 4), App.Rotation(V(0, 0, 1), 0))
boolean20 = body32.newObject("PartDesign::Boolean", "Boolean019")
boolean20.Type = "Fuse"
boolean20.addObjects([body31])
doc.recompute()

boolean21 = body32.newObject("PartDesign::Boolean", "Boolean020")
boolean21.Type = "Cut"
boolean21.addObjects([body30])
doc.recompute()

boolean22 = body32.newObject("PartDesign::Boolean", "Boolean021")
boolean22.Type = "Cut"
boolean22.addObjects([body29])
doc.recompute()

boolean23 = body32.newObject("PartDesign::Boolean", "Boolean022")
boolean23.Type = "Cut"
boolean23.addObjects([body28])
doc.recompute()

boolean24 = body32.newObject("PartDesign::Boolean", "Boolean023")
boolean24.Type = "Cut"
boolean24.addObjects([body24])
body33 = doc.addObject("PartDesign::Body", "Body032")

# Sketch on XY plane
sketch18 = body33.newObject("Sketcher::SketchObject", "Sketch017")
sketch18.AttachmentSupport = (doc.getObject("XY_Plane032"), [""])
sketch18.MapMode = "FlatFace"
sketch18.addGeometry(Part.Circle(V(0, 0, 0), V(0, 0, 1), 7), False)
sketch18.addConstraint(Sketcher.Constraint("Coincident", 0, 3, -1, 1))
sketch18.addConstraint(Sketcher.Constraint("Diameter", 0, 14.0))
pad18 = body33.newObject("PartDesign::Pad", "Pad017")
pad18.Profile = sketch18
pad18.Length = 2
body34 = doc.addObject("PartDesign::Body", "Body033")
doc.recompute()

body33.Placement = App.Placement(V(51, 75, -3), App.Rotation(V(0, -1, 0), 29.99999))
boolean25 = body34.newObject("PartDesign::Boolean", "Boolean024")
boolean25.Type = "Fuse"
boolean25.addObjects([body33])
body35 = doc.addObject("PartDesign::Body", "Body034")

# Sketch on XY plane
sketch19 = body35.newObject("Sketcher::SketchObject", "Sketch018")
sketch19.AttachmentSupport = (doc.getObject("XY_Plane034"), [""])
sketch19.MapMode = "FlatFace"
sketch19.addGeometry(Part.Circle(V(0, 0, 0), V(0, 0, 1), 6), False)
sketch19.addConstraint(Sketcher.Constraint("Coincident", 0, 3, -1, 1))
sketch19.addConstraint(Sketcher.Constraint("Diameter", 0, 12.0))
pad19 = body35.newObject("PartDesign::Pad", "Pad018")
pad19.Profile = sketch19
pad19.Length = 10
body36 = doc.addObject("PartDesign::Body", "Body035")
doc.recompute()

body35.Placement = App.Placement(V(51, 75, -3), App.Rotation(V(0, -1, 0), 29.99999))
boolean26 = body36.newObject("PartDesign::Boolean", "Boolean025")
boolean26.Type = "Fuse"
boolean26.addObjects([body35])
doc.recompute()

boolean27 = body36.newObject("PartDesign::Boolean", "Boolean026")
boolean27.Type = "Fuse"
boolean27.addObjects([body34])
body37 = doc.addObject("PartDesign::Body", "Body036")
doc.recompute()

body36.Placement = App.Placement(V(0, 0, 0), App.Rotation(V(1, 0, 0), 180))
boolean28 = body37.newObject("PartDesign::Boolean", "Boolean027")
boolean28.Type = "Fuse"
boolean28.addObjects([body36])
body38 = doc.addObject("PartDesign::Body", "Body037")
doc.recompute()

body37.Placement = App.Placement(V(0, 0, 0), App.Rotation(V(0, 1, 0), 290))
boolean29 = body38.newObject("PartDesign::Boolean", "Boolean028")
boolean29.Type = "Fuse"
boolean29.addObjects([body37])
body39 = doc.addObject("PartDesign::Body", "Body038")
doc.recompute()

body38.Placement = App.Placement(V(175.5, 143.464742, -29.748779), App.Rotation(V(0, 0, 1), 270))
boolean30 = body39.newObject("PartDesign::Boolean", "Boolean029")
boolean30.Type = "Fuse"
boolean30.addObjects([body38])
doc.recompute()

boolean31 = body39.newObject("PartDesign::Boolean", "Boolean030")
boolean31.Type = "Fuse"
boolean31.addObjects([body32])
doc.recompute()

boolean32 = body39.newObject("PartDesign::Boolean", "Boolean031")
boolean32.Type = "Cut"
boolean32.addObjects([body23])
doc.recompute()

boolean33 = body39.newObject("PartDesign::Boolean", "Boolean032")
boolean33.Type = "Fuse"
boolean33.addObjects([body21])
doc.recompute()

boolean34 = body39.newObject("PartDesign::Boolean", "Boolean033")
boolean34.Type = "Fuse"
boolean34.addObjects([body22])
doc.recompute()

boolean35 = body39.newObject("PartDesign::Boolean", "Boolean034")
boolean35.Type = "Cut"
boolean35.addObjects([body20])
doc.recompute()

boolean36 = body39.newObject("PartDesign::Boolean", "Boolean035")
boolean36.Type = "Cut"
boolean36.addObjects([body11])
doc.recompute()

boolean37 = body39.newObject("PartDesign::Boolean", "Boolean036")
boolean37.Type = "Cut"
boolean37.addObjects([body4])
doc.recompute()

boolean38 = body39.newObject("PartDesign::Boolean", "Boolean037")
boolean38.Type = "Cut"
boolean38.addObjects([body3])

doc.recompute()
